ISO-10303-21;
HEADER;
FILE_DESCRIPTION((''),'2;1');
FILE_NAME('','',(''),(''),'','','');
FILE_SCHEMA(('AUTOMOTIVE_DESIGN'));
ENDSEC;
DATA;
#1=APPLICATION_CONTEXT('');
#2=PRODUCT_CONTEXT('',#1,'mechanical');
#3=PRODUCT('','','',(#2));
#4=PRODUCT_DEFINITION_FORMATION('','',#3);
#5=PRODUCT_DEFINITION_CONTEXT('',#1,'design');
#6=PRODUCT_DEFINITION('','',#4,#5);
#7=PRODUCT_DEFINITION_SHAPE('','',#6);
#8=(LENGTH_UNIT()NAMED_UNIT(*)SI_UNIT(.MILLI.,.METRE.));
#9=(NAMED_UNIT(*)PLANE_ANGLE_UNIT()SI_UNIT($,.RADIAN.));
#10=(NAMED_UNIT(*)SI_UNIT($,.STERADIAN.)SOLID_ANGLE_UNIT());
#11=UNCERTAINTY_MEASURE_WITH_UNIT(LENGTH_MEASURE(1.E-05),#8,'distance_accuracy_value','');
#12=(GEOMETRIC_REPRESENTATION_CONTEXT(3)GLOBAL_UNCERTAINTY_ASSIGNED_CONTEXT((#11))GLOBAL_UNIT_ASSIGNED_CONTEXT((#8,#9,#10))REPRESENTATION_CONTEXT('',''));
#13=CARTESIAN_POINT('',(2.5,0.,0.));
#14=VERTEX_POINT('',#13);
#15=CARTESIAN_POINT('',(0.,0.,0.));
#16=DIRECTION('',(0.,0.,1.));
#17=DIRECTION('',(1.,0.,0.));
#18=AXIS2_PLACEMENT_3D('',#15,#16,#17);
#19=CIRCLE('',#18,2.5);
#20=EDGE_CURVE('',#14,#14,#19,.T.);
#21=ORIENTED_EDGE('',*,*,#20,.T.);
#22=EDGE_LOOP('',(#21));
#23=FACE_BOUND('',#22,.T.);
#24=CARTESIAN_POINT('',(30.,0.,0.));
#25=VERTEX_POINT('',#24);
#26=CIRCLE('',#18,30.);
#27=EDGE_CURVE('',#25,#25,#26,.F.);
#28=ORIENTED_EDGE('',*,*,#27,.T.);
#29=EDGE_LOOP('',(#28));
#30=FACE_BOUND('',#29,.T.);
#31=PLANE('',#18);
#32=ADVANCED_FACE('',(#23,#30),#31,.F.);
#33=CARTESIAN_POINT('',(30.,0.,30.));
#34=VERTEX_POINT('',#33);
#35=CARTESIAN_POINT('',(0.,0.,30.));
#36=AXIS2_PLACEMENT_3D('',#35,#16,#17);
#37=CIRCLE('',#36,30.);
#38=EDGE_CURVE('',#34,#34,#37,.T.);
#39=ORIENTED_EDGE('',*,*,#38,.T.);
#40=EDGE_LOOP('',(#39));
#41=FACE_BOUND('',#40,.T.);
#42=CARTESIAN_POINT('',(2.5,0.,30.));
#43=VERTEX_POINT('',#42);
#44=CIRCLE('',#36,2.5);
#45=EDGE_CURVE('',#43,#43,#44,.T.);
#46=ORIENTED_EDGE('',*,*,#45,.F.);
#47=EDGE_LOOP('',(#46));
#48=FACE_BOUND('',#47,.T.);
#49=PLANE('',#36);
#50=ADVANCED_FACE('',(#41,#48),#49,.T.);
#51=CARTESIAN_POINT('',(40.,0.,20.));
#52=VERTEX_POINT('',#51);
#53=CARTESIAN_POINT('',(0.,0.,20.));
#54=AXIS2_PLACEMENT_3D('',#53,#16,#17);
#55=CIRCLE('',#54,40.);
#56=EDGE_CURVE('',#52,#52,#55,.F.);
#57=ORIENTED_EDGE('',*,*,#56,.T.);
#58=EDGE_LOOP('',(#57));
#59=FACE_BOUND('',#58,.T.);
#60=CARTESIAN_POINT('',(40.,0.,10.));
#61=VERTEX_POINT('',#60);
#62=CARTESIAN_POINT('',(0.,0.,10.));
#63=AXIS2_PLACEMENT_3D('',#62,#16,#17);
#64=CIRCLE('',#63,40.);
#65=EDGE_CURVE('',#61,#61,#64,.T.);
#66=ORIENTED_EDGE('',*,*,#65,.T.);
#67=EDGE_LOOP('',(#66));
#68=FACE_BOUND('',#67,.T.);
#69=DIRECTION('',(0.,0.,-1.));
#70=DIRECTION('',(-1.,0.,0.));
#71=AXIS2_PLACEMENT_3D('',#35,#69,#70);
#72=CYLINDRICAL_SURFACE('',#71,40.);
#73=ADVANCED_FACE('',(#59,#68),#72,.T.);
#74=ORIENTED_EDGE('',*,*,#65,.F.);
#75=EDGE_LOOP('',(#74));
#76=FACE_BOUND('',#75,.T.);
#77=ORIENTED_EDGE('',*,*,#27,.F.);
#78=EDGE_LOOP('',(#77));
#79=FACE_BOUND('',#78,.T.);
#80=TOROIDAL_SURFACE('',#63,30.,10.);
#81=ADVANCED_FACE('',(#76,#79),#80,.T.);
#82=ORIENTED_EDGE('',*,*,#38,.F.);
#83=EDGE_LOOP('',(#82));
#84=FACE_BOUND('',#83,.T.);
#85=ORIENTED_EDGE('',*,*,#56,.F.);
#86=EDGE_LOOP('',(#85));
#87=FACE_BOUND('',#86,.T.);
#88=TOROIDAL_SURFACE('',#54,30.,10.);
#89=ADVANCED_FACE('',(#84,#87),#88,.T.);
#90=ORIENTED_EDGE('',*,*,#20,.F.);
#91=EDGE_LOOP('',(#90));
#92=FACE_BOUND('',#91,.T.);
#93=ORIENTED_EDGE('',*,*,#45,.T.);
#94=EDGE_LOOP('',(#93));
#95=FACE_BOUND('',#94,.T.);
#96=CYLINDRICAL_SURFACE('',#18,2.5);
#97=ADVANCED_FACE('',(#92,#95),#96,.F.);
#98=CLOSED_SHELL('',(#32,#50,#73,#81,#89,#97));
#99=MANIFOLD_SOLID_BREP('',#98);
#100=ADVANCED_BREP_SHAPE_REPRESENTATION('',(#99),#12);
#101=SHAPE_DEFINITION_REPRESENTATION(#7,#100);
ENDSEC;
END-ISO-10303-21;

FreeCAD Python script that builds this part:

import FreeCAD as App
import Part
import Sketcher

V = App.Vector
Q = App.Units.Quantity


def edges_at(feature, points):
    """Names of the edges that pass closest to the given points."""
    edges = feature.Shape.Edges
    near = lambda p: min(range(len(edges)), key=lambda i: edges[i].distToShape(Part.Vertex(*p))[0])
    return sorted({f"Edge{near(p) + 1}" for p in points})

doc = App.newDocument("Part")
params = doc.addObject("Spreadsheet::Sheet", "Params")
for row, (alias, value) in enumerate([
    ("sketch1_diameter", "80 mm"),
    ("pad1_length", "30 mm"),
    ("fillet_radius", "10 mm"),
    ("sketch2_diameter", "5 mm"),
    ("pocket1_length", "30 mm"),
], start=1):
    params.set(f"A{row}", alias)
    params.set(f"B{row}", "=" + value)
    params.setAlias(f"B{row}", alias)

body = doc.addObject("PartDesign::Body", "Body")

sketch1 = body.newObject("Sketcher::SketchObject", "Sketch")
sketch1.AttachmentSupport = (doc.getObject("XY_Plane"), [""])
sketch1.MapMode = "FlatFace"
sketch1.addGeometry(Part.Circle(V(0, 0, 0), V(0, 0, 1), 40), False)
sketch1.addConstraint([
    Sketcher.Constraint("Coincident", 0, 3, -1, 1),
    Sketcher.Constraint("Diameter", 0, Q("80 mm")),
])
sketch1.setExpression("Constraints[1]", "Params.sketch1_diameter")
pad1 = body.newObject("PartDesign::Pad", "Pad")
pad1.Profile = sketch1
pad1.setExpression("Length", "Params.pad1_length")
doc.recompute()

fillet = body.newObject("PartDesign::Fillet", "Fillet")
fillet.Base = (pad1, edges_at(pad1, [(-40, 0, 0), (-40, 0, 30)]))
fillet.setExpression("Radius", "Params.fillet_radius")

sketch2 = body.newObject("Sketcher::SketchObject", "Sketch001")
sketch2.AttachmentSupport = (doc.getObject("XY_Plane"), [""])
sketch2.MapMode = "FlatFace"
sketch2.AttachmentOffset = App.Placement(V(0, 0, 30), App.Rotation())
sketch2.addGeometry(Part.Circle(V(0, 0, 0), V(0, 0, 1), 2.5), False)
sketch2.addConstraint([
    Sketcher.Constraint("Coincident", 0, 3, -1, 1),
    Sketcher.Constraint("Diameter", 0, Q("5 mm")),
])
sketch2.setExpression("Constraints[1]", "Params.sketch2_diameter")
pocket1 = body.newObject("PartDesign::Pocket", "Pocket")
pocket1.Profile = sketch2
pocket1.setExpression("Length", "Params.pocket1_length")

doc.recompute()
